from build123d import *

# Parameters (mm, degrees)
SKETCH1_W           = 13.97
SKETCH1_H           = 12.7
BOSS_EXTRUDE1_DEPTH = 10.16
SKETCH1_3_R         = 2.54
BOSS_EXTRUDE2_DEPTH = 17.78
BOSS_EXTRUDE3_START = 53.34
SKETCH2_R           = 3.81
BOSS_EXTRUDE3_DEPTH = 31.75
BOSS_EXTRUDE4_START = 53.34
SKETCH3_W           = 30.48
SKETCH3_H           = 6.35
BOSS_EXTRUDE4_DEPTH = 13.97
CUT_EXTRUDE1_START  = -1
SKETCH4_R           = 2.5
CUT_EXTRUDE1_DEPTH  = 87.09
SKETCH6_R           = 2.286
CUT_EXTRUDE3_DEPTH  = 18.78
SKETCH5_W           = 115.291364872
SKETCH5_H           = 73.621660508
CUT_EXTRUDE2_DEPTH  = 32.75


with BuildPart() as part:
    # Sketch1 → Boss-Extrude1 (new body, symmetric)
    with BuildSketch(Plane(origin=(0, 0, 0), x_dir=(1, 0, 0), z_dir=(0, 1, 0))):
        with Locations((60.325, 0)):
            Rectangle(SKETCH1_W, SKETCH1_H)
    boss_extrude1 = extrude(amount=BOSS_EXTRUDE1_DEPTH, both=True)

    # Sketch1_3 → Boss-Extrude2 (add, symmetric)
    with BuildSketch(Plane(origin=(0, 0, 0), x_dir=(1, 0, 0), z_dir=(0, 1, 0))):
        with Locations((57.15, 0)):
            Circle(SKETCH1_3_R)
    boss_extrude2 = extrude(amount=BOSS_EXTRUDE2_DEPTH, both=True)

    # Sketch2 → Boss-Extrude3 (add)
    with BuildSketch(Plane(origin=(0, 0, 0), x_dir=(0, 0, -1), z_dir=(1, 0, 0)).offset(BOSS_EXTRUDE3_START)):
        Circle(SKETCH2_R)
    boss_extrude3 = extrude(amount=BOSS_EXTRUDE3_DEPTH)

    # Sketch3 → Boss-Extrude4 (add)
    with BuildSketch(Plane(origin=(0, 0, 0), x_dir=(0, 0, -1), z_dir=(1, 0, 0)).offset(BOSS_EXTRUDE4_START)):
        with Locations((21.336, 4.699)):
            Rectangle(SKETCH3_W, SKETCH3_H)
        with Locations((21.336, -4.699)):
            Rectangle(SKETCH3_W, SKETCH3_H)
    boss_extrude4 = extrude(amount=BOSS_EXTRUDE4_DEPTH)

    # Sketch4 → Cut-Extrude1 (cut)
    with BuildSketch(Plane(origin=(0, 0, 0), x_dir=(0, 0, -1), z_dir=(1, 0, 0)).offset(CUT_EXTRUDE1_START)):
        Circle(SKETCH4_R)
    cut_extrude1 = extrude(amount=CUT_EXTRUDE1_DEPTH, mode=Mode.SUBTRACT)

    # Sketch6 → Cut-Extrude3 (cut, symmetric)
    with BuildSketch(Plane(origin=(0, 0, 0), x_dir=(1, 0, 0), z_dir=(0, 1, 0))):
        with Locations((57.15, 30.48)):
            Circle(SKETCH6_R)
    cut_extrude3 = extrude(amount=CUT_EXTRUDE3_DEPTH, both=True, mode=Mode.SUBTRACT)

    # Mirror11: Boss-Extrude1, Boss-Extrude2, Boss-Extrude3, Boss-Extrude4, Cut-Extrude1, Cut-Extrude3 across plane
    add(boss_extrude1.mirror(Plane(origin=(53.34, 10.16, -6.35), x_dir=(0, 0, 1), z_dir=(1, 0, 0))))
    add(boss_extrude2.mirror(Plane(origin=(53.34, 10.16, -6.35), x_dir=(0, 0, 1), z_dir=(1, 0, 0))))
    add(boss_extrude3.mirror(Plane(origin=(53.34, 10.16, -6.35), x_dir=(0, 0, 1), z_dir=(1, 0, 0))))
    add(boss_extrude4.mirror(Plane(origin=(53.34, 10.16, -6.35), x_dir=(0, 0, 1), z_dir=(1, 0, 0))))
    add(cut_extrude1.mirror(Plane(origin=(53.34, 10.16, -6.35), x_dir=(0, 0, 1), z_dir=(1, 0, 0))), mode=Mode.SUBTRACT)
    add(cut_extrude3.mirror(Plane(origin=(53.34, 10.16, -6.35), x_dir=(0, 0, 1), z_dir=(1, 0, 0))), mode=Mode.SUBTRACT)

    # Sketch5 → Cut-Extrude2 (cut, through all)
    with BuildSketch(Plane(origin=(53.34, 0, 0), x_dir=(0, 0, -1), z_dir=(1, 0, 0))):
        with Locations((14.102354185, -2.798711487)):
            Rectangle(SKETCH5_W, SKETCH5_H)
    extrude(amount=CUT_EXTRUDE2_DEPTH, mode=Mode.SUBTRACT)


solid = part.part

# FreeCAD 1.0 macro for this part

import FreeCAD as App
import Part
import Sketcher
from FreeCAD import Vector
Q = App.Units.Quantity


def add_polygon(sketch, points):
    """Adds a closed chain of lines whose ends are joined by coincident constraints."""
    first, n = sketch.GeometryCount, len(points)
    for a, b in zip(points, points[1:] + points[:1]):
        sketch.addGeometry(Part.LineSegment(App.Vector(*a, 0), App.Vector(*b, 0)), False)
    for i in range(n):
        sketch.addConstraint(Sketcher.Constraint("Coincident", first + i, 2, first + (i + 1) % n, 1))

doc = App.newDocument("Part")
body = doc.addObject("PartDesign::Body", "Body")

sketch1 = body.newObject("Sketcher::SketchObject", "Sketch")
sketch1.AttachmentSupport = (doc.getObject("XZ_Plane"), [""])
sketch1.MapMode = "FlatFace"
add_polygon(sketch1, [(53.34, -6.35), (53.34, 6.35), (67.31, 6.35), (67.31, -6.35)])
sketch1.addConstraint([
    Sketcher.Constraint("Vertical", 0),
    Sketcher.Constraint("Horizontal", 1),
    Sketcher.Constraint("Vertical", 2),
    Sketcher.Constraint("Horizontal", 3),
    Sketcher.Constraint("DistanceY", 0, 1, 0, 2, Q("0.5 in")),
    Sketcher.Constraint("DistanceX", 1, 1, 1, 2, Q("0.55 in")),
    Sketcher.Constraint("DistanceX", -1, 1, 0, 2, Q("2.1 in")),
    Sketcher.Constraint("DistanceY", -1, 1, 0, 2, Q("0.25 in")),
])
pad1 = body.newObject("PartDesign::Pad", "Pad")
pad1.Profile = sketch1
pad1.Length = Q("0.8 in")
pad1.Midplane = True

sketch2 = body.newObject("Sketcher::SketchObject", "Sketch001")
sketch2.AttachmentSupport = (doc.getObject("XZ_Plane"), [""])
sketch2.MapMode = "FlatFace"
sketch2.addGeometry(Part.Circle(Vector(57.15, 0, 0), Vector(0, 0, 1), 2.54), False)
sketch2.addConstraint([
    Sketcher.Constraint("PointOnObject", 0, 3, -1),
    Sketcher.Constraint("Diameter", 0, Q("0.2 in")),
    Sketcher.Constraint("DistanceX", -1, 1, 0, 3, Q("2.25 in")),
])
pad2 = body.newObject("PartDesign::Pad", "Pad001")
pad2.Profile = sketch2
pad2.Length = Q("1.4 in")
pad2.Midplane = True

sketch3 = body.newObject("Sketcher::SketchObject", "Sketch002")
sketch3.AttachmentSupport = (doc.getObject("YZ_Plane"), [""])
sketch3.MapMode = "FlatFace"
sketch3.AttachmentOffset = App.Placement(Vector(0, 0, 2.1 * 25.4), App.Rotation())
sketch3.addGeometry(Part.Circle(Vector(0, 0, 0), Vector(0, 0, 1), 3.81), False)
sketch3.addConstraint([
    Sketcher.Constraint("Coincident", 0, 3, -1, 1),
    Sketcher.Constraint("Diameter", 0, Q("0.3 in")),
])
pad3 = body.newObject("PartDesign::Pad", "Pad002")
pad3.Profile = sketch3
pad3.Length = Q("1.25 in")

sketch4 = body.newObject("Sketcher::SketchObject", "Sketch003")
sketch4.AttachmentSupport = (doc.getObject("YZ_Plane"), [""])
sketch4.MapMode = "FlatFace"
sketch4.AttachmentOffset = App.Placement(Vector(0, 0, 2.1 * 25.4), App.Rotation())
add_polygon(sketch4, [(7.874, -6.096), (1.524, -6.096), (1.524, -36.576), (7.874, -36.576)])
add_polygon(sketch4, [(-1.524, -6.096), (-7.874, -6.096), (-7.874, -36.576), (-1.524, -36.576)])
sketch4.addConstraint([
    Sketcher.Constraint("Horizontal", 0),
    Sketcher.Constraint("Vertical", 1),
    Sketcher.Constraint("Horizontal", 2),
    Sketcher.Constraint("Vertical", 3),
    Sketcher.Constraint("Horizontal", 4),
    Sketcher.Constraint("Vertical", 5),
    Sketcher.Constraint("Horizontal", 6),
    Sketcher.Constraint("Vertical", 7),
    Sketcher.Constraint("Symmetric", 3, 2, 4, 2, -2),
    Sketcher.Constraint("Symmetric", 1, 2, 6, 2, -2),
    Sketcher.Constraint("DistanceY", 1, 2, 1, 1, Q("1.2 in")),
    Sketcher.Constraint("DistanceX", 0, 2, 0, 1, Q("0.25 in")),
    Sketcher.Constraint("DistanceX", -1, 1, 0, 2, Q("0.06 in")),
    Sketcher.Constraint("DistanceY", 0, 2, -1, 1, Q("0.24 in")),
])
pad4 = body.newObject("PartDesign::Pad", "Pad003")
pad4.Profile = sketch4
pad4.Length = Q("0.55 in")

sketch5 = body.newObject("Sketcher::SketchObject", "Sketch004")
sketch5.AttachmentSupport = (doc.getObject("YZ_Plane"), [""])
sketch5.MapMode = "FlatFace"
sketch5.AttachmentOffset = App.Placement(Vector(0, 0, -1), App.Rotation())
sketch5.addGeometry(Part.Circle(Vector(0, 0, 0), Vector(0, 0, 1), 2.5), False)
sketch5.addConstraint([
    Sketcher.Constraint("Coincident", 0, 3, -1, 1),
    Sketcher.Constraint("Diameter", 0, 5.0),
])
pocket1 = body.newObject("PartDesign::Pocket", "Pocket")
pocket1.Profile = sketch5
pocket1.Length = 87.09
pocket1.Reversed = True

sketch6 = body.newObject("Sketcher::SketchObject", "Sketch005")
sketch6.AttachmentSupport = (doc.getObject("XZ_Plane"), [""])
sketch6.MapMode = "FlatFace"
sketch6.addGeometry(Part.Circle(Vector(57.15, -30.48, 0), Vector(0, 0, 1), 2.286), False)
sketch6.addConstraint([
    Sketcher.Constraint("Diameter", 0, Q("0.18 in")),
    Sketcher.Constraint("DistanceY", 0, 3, -1, 1, Q("1.2 in")),
    Sketcher.Constraint("DistanceX", -1, 1, 0, 3, Q("2.25 in")),
])
pocket2 = body.newObject("PartDesign::Pocket", "Pocket001")
pocket2.Profile = sketch6
pocket2.Length = 37.56
pocket2.Midplane = True
doc.recompute()

datumplane = body.newObject("PartDesign::Plane", "DatumPlane")
datumplane.AttachmentSupport = (doc.getObject("YZ_Plane"), [""])
datumplane.MapMode = "FlatFace"
datumplane.AttachmentOffset = App.Placement(Vector(0, 0, 2.1 * 25.4), App.Rotation())
mirrored = body.newObject("PartDesign::Mirrored", "Mirrored")
mirrored.Originals = [pad1, pad2, pad3, pad4, pocket1, pocket2]
mirrored.MirrorPlane = (datumplane, [""])
body.Tip = mirrored

sketch7 = body.newObject("Sketcher::SketchObject", "Sketch006")
sketch7.AttachmentSupport = (doc.getObject("YZ_Plane"), [""])
sketch7.MapMode = "FlatFace"
sketch7.AttachmentOffset = App.Placement(Vector(0, 0, 2.1 * 25.4), App.Rotation())
add_polygon(sketch7, [(34.012119, 43.543328), (-39.609542, 43.543328), (-39.609542, -71.748037), (34.012119, -71.748037)])
sketch7.addConstraint([
    Sketcher.Constraint("Horizontal", 0),
    Sketcher.Constraint("Vertical", 1),
    Sketcher.Constraint("Horizontal", 2),
    Sketcher.Constraint("Vertical", 3),
    Sketcher.Constraint("DistanceX", 0, 2, 0, 1, 73.621661),
    Sketcher.Constraint("DistanceY", 1, 2, 1, 1, 115.291365),
    Sketcher.Constraint("DistanceX", 0, 2, -1, 1, 39.609542),
    Sketcher.Constraint("DistanceY", -1, 1, 0, 2, 43.543328),
])
pocket3 = body.newObject("PartDesign::Pocket", "Pocket002")
pocket3.Profile = sketch7
pocket3.Type = "ThroughAll"
pocket3.Reversed = True

doc.recompute()
